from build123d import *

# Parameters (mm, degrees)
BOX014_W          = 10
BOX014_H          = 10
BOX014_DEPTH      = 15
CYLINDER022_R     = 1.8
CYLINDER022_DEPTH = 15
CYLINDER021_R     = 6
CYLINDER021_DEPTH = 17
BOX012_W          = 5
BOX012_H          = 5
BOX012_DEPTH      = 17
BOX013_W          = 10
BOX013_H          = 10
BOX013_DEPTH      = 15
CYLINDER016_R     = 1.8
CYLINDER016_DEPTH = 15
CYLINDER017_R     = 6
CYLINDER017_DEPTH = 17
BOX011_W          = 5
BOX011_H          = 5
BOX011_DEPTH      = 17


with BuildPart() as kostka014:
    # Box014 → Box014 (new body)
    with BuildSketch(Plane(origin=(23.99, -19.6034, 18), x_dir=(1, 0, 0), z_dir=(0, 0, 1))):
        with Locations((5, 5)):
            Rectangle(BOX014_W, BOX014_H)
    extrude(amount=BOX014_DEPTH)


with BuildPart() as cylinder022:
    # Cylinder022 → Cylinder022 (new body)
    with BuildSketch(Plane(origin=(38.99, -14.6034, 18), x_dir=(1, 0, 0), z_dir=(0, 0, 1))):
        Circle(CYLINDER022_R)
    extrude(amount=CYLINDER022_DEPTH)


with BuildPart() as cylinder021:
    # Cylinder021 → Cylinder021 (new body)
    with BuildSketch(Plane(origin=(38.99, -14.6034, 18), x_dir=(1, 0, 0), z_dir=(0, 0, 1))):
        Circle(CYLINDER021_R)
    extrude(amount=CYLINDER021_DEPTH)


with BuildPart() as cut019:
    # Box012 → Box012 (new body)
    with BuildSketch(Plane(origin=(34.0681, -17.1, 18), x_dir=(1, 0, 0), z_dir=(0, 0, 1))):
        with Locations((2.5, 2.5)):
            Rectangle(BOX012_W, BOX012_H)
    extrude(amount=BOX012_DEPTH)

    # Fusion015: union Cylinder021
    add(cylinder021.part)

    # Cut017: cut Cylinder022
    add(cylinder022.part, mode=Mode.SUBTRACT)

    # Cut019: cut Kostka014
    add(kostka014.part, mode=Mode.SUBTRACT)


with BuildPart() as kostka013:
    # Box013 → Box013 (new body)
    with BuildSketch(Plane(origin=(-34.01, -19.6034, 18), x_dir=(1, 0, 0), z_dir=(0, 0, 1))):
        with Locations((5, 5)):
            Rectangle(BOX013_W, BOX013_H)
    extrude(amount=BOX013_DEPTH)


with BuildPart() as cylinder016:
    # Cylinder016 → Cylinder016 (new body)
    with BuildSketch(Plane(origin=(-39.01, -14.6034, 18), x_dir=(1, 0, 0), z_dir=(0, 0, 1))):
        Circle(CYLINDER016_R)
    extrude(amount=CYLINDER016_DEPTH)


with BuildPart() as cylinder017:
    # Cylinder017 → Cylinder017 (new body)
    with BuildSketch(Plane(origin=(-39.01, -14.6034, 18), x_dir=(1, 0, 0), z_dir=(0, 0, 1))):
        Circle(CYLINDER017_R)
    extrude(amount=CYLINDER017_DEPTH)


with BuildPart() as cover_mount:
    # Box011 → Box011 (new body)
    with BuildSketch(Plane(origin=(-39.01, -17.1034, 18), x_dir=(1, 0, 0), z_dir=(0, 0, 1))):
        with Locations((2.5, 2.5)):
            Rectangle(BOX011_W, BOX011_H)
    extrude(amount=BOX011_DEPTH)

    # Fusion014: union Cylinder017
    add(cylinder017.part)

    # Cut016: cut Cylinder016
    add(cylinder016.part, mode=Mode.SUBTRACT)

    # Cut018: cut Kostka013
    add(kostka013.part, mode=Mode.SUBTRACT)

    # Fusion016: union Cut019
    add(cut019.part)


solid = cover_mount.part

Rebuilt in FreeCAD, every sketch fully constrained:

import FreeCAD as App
import Part
import Sketcher

doc = App.newDocument("Part")
body = doc.addObject("PartDesign::Body", "Body")

# Sketch on XY plane
sketch1 = body.newObject("Sketcher::SketchObject", "Sketch")
sketch1.AttachmentSupport = (doc.getObject("XY_Plane"), [""])
sketch1.MapMode = "FlatFace"
sketch1.AttachmentOffset = App.Placement(App.Vector(0, 0, 18), App.Rotation())
sketch1.addGeometry([
    Part.LineSegment(App.Vector(23.99, -9.6034, 0), App.Vector(23.99, -19.6034, 0)),
    Part.LineSegment(App.Vector(23.99, -19.6034, 0), App.Vector(33.99, -19.6034, 0)),
    Part.LineSegment(App.Vector(33.99, -19.6034, 0), App.Vector(33.99, -9.6034, 0)),
    Part.LineSegment(App.Vector(33.99, -9.6034, 0), App.Vector(23.99, -9.6034, 0)),
], False)
sketch1.addConstraint([
    Sketcher.Constraint("Coincident", 0, 2, 1, 1),
    Sketcher.Constraint("Coincident", 1, 2, 2, 1),
    Sketcher.Constraint("Coincident", 2, 2, 3, 1),
    Sketcher.Constraint("Coincident", 3, 2, 0, 1),
    Sketcher.Constraint("Vertical", 0),
    Sketcher.Constraint("Horizontal", 1),
    Sketcher.Constraint("Vertical", 2),
    Sketcher.Constraint("Horizontal", 3),
    Sketcher.Constraint("Equal", 3, 0),
    Sketcher.Constraint("DistanceX", 1, 1, 1, 2, 10.0),
    Sketcher.Constraint("DistanceX", -1, 1, 0, 2, 23.99),
    Sketcher.Constraint("DistanceY", 0, 2, -1, 1, 19.6034),
])
pad1 = body.newObject("PartDesign::Pad", "Pad")
pad1.Profile = sketch1
pad1.Length = 15
body2 = doc.addObject("PartDesign::Body", "Body001")

# Sketch on XY plane
sketch2 = body2.newObject("Sketcher::SketchObject", "Sketch001")
sketch2.AttachmentSupport = (doc.getObject("XY_Plane001"), [""])
sketch2.MapMode = "FlatFace"
sketch2.AttachmentOffset = App.Placement(App.Vector(0, 0, 18), App.Rotation())
sketch2.addGeometry(Part.Circle(App.Vector(38.99, -14.6034, 0), App.Vector(0, 0, 1), 1.8), False)
sketch2.addConstraint([
    Sketcher.Constraint("Diameter", 0, 3.6),
    Sketcher.Constraint("DistanceX", -1, 1, 0, 3, 38.99),
    Sketcher.Constraint("DistanceY", 0, 3, -1, 1, 14.6034),
])
pad2 = body2.newObject("PartDesign::Pad", "Pad001")
pad2.Profile = sketch2
pad2.Length = 15
body3 = doc.addObject("PartDesign::Body", "Body002")

# Sketch on XY plane
sketch3 = body3.newObject("Sketcher::SketchObject", "Sketch002")
sketch3.AttachmentSupport = (doc.getObject("XY_Plane002"), [""])
sketch3.MapMode = "FlatFace"
sketch3.AttachmentOffset = App.Placement(App.Vector(0, 0, 18), App.Rotation())
sketch3.addGeometry(Part.Circle(App.Vector(38.99, -14.6034, 0), App.Vector(0, 0, 1), 6), False)
sketch3.addConstraint([
    Sketcher.Constraint("Diameter", 0, 12.0),
    Sketcher.Constraint("DistanceX", -1, 1, 0, 3, 38.99),
    Sketcher.Constraint("DistanceY", 0, 3, -1, 1, 14.6034),
])
pad3 = body3.newObject("PartDesign::Pad", "Pad002")
pad3.Profile = sketch3
pad3.Length = 17
body4 = doc.addObject("PartDesign::Body", "Body003")

# Sketch on XY plane
sketch4 = body4.newObject("Sketcher::SketchObject", "Sketch003")
sketch4.AttachmentSupport = (doc.getObject("XY_Plane003"), [""])
sketch4.MapMode = "FlatFace"
sketch4.AttachmentOffset = App.Placement(App.Vector(0, 0, 18), App.Rotation())
sketch4.addGeometry([
    Part.LineSegment(App.Vector(34.0681, -12.1, 0), App.Vector(34.0681, -17.1, 0)),
    Part.LineSegment(App.Vector(34.0681, -17.1, 0), App.Vector(39.0681, -17.1, 0)),
    Part.LineSegment(App.Vector(39.0681, -17.1, 0), App.Vector(39.0681, -12.1, 0)),
    Part.LineSegment(App.Vector(39.0681, -12.1, 0), App.Vector(34.0681, -12.1, 0)),
], False)
sketch4.addConstraint([
    Sketcher.Constraint("Coincident", 0, 2, 1, 1),
    Sketcher.Constraint("Coincident", 1, 2, 2, 1),
    Sketcher.Constraint("Coincident", 2, 2, 3, 1),
    Sketcher.Constraint("Coincident", 3, 2, 0, 1),
    Sketcher.Constraint("Vertical", 0),
    Sketcher.Constraint("Horizontal", 1),
    Sketcher.Constraint("Vertical", 2),
    Sketcher.Constraint("Horizontal", 3),
    Sketcher.Constraint("Equal", 3, 0),
    Sketcher.Constraint("DistanceX", 1, 1, 1, 2, 5.0),
    Sketcher.Constraint("DistanceY", 0, 2, -1, 1, 17.1),
    Sketcher.Constraint("DistanceX", -1, 1, 0, 2, 34.0681),
])
pad4 = body4.newObject("PartDesign::Pad", "Pad003")
pad4.Profile = sketch4
pad4.Length = 17
doc.recompute()

boolean = body4.newObject("PartDesign::Boolean", "Boolean")
boolean.Type = "Fuse"
boolean.addObjects([body3])
doc.recompute()

boolean2 = body4.newObject("PartDesign::Boolean", "Boolean001")
boolean2.Type = "Cut"
boolean2.addObjects([body2])
doc.recompute()

boolean3 = body4.newObject("PartDesign::Boolean", "Boolean002")
boolean3.Type = "Cut"
boolean3.addObjects([body])
body5 = doc.addObject("PartDesign::Body", "Body004")

# Sketch on XY plane
sketch5 = body5.newObject("Sketcher::SketchObject", "Sketch004")
sketch5.AttachmentSupport = (doc.getObject("XY_Plane004"), [""])
sketch5.MapMode = "FlatFace"
sketch5.AttachmentOffset = App.Placement(App.Vector(0, 0, 18), App.Rotation())
sketch5.addGeometry([
    Part.LineSegment(App.Vector(-34.01, -9.6034, 0), App.Vector(-34.01, -19.6034, 0)),
    Part.LineSegment(App.Vector(-34.01, -19.6034, 0), App.Vector(-24.01, -19.6034, 0)),
    Part.LineSegment(App.Vector(-24.01, -19.6034, 0), App.Vector(-24.01, -9.6034, 0)),
    Part.LineSegment(App.Vector(-24.01, -9.6034, 0), App.Vector(-34.01, -9.6034, 0)),
], False)
sketch5.addConstraint([
    Sketcher.Constraint("Coincident", 0, 2, 1, 1),
    Sketcher.Constraint("Coincident", 1, 2, 2, 1),
    Sketcher.Constraint("Coincident", 2, 2, 3, 1),
    Sketcher.Constraint("Coincident", 3, 2, 0, 1),
    Sketcher.Constraint("Vertical", 0),
    Sketcher.Constraint("Horizontal", 1),
    Sketcher.Constraint("Vertical", 2),
    Sketcher.Constraint("Horizontal", 3),
    Sketcher.Constraint("Equal", 3, 0),
    Sketcher.Constraint("DistanceX", 1, 1, 1, 2, 10.0),
    Sketcher.Constraint("DistanceX", 0, 2, -1, 1, 34.01),
    Sketcher.Constraint("DistanceY", 0, 2, -1, 1, 19.6034),
])
pad5 = body5.newObject("PartDesign::Pad", "Pad004")
pad5.Profile = sketch5
pad5.Length = 15
body6 = doc.addObject("PartDesign::Body", "Body005")

# Sketch on XY plane
sketch6 = body6.newObject("Sketcher::SketchObject", "Sketch005")
sketch6.AttachmentSupport = (doc.getObject("XY_Plane005"), [""])
sketch6.MapMode = "FlatFace"
sketch6.AttachmentOffset = App.Placement(App.Vector(0, 0, 18), App.Rotation())
sketch6.addGeometry(Part.Circle(App.Vector(-39.01, -14.6034, 0), App.Vector(0, 0, 1), 1.8), False)
sketch6.addConstraint([
    Sketcher.Constraint("Diameter", 0, 3.6),
    Sketcher.Constraint("DistanceX", 0, 3, -1, 1, 39.01),
    Sketcher.Constraint("DistanceY", 0, 3, -1, 1, 14.6034),
])
pad6 = body6.newObject("PartDesign::Pad", "Pad005")
pad6.Profile = sketch6
pad6.Length = 15
body7 = doc.addObject("PartDesign::Body", "Body006")

# Sketch on XY plane
sketch7 = body7.newObject("Sketcher::SketchObject", "Sketch006")
sketch7.AttachmentSupport = (doc.getObject("XY_Plane006"), [""])
sketch7.MapMode = "FlatFace"
sketch7.AttachmentOffset = App.Placement(App.Vector(0, 0, 18), App.Rotation())
sketch7.addGeometry(Part.Circle(App.Vector(-39.01, -14.6034, 0), App.Vector(0, 0, 1), 6), False)
sketch7.addConstraint([
    Sketcher.Constraint("Diameter", 0, 12.0),
    Sketcher.Constraint("DistanceX", 0, 3, -1, 1, 39.01),
    Sketcher.Constraint("DistanceY", 0, 3, -1, 1, 14.6034),
])
pad7 = body7.newObject("PartDesign::Pad", "Pad006")
pad7.Profile = sketch7
pad7.Length = 17
body8 = doc.addObject("PartDesign::Body", "Body007")
body8.AllowCompound = True

# Sketch on XY plane
sketch8 = body8.newObject("Sketcher::SketchObject", "Sketch007")
sketch8.AttachmentSupport = (doc.getObject("XY_Plane007"), [""])
sketch8.MapMode = "FlatFace"
sketch8.AttachmentOffset = App.Placement(App.Vector(0, 0, 18), App.Rotation())
sketch8.addGeometry([
    Part.LineSegment(App.Vector(-39.01, -12.1034, 0), App.Vector(-39.01, -17.1034, 0)),
    Part.LineSegment(App.Vector(-39.01, -17.1034, 0), App.Vector(-34.01, -17.1034, 0)),
    Part.LineSegment(App.Vector(-34.01, -17.1034, 0), App.Vector(-34.01, -12.1034, 0)),
    Part.LineSegment(App.Vector(-34.01, -12.1034, 0), App.Vector(-39.01, -12.1034, 0)),
], False)
sketch8.addConstraint([
    Sketcher.Constraint("Coincident", 0, 2, 1, 1),
    Sketcher.Constraint("Coincident", 1, 2, 2, 1),
    Sketcher.Constraint("Coincident", 2, 2, 3, 1),
    Sketcher.Constraint("Coincident", 3, 2, 0, 1),
    Sketcher.Constraint("Vertical", 0),
    Sketcher.Constraint("Horizontal", 1),
    Sketcher.Constraint("Vertical", 2),
    Sketcher.Constraint("Horizontal", 3),
    Sketcher.Constraint("Equal", 3, 0),
    Sketcher.Constraint("DistanceX", 1, 1, 1, 2, 5.0),
    Sketcher.Constraint("DistanceX", 0, 2, -1, 1, 39.01),
    Sketcher.Constraint("DistanceY", 0, 2, -1, 1, 17.1034),
])
pad8 = body8.newObject("PartDesign::Pad", "Pad007")
pad8.Profile = sketch8
pad8.Length = 17
doc.recompute()

boolean4 = body8.newObject("PartDesign::Boolean", "Boolean003")
boolean4.Type = "Fuse"
boolean4.addObjects([body7])
doc.recompute()

boolean5 = body8.newObject("PartDesign::Boolean", "Boolean004")
boolean5.Type = "Cut"
boolean5.addObjects([body6])
doc.recompute()

boolean6 = body8.newObject("PartDesign::Boolean", "Boolean005")
boolean6.Type = "Cut"
boolean6.addObjects([body5])
doc.recompute()

boolean7 = body8.newObject("PartDesign::Boolean", "Boolean006")
boolean7.Type = "Fuse"
boolean7.addObjects([body4])

doc.recompute()
